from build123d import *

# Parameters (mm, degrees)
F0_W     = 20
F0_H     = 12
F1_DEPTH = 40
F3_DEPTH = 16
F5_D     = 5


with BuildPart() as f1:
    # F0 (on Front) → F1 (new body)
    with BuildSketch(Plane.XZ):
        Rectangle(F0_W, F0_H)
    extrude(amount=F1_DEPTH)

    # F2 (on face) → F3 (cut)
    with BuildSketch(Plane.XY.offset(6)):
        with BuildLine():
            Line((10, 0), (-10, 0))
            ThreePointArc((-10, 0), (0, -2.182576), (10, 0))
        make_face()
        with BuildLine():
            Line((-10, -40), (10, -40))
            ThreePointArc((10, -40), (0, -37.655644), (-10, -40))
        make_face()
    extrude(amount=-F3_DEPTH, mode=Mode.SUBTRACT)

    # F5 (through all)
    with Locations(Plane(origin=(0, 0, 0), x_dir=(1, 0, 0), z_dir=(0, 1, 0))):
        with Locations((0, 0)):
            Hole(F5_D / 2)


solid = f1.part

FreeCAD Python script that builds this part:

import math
import FreeCAD as App
import Part
import Sketcher

V = App.Vector
Q = App.Units.Quantity


def add_polygon(sketch, points):
    """Adds a closed chain of lines whose ends are joined by coincident constraints."""
    first, n = sketch.GeometryCount, len(points)
    for a, b in zip(points, points[1:] + points[:1]):
        sketch.addGeometry(Part.LineSegment(App.Vector(*a, 0), App.Vector(*b, 0)), False)
    for i in range(n):
        sketch.addConstraint(Sketcher.Constraint("Coincident", first + i, 2, first + (i + 1) % n, 1))

doc = App.newDocument("Part")
body = doc.addObject("PartDesign::Body", "Body")

# Sketch on XZ plane
sketch1 = body.newObject("Sketcher::SketchObject", "Sketch")
sketch1.AttachmentSupport = (doc.getObject("XZ_Plane"), [""])
sketch1.MapMode = "FlatFace"
add_polygon(sketch1, [(-10, 6), (-10, -6), (10, -6), (10, 6)])  # lines 0-3
sketch1.addConstraint([
    Sketcher.Constraint("Vertical", 0),
    Sketcher.Constraint("Horizontal", 1),
    Sketcher.Constraint("Vertical", 2),
    Sketcher.Constraint("Horizontal", 3),
    Sketcher.Constraint("Symmetric", 0, 2, 2, 2, -1, 1),
    Sketcher.Constraint("DistanceX", 1, 1, 1, 2, Q("20 mm")),
    Sketcher.Constraint("DistanceY", 0, 2, 0, 1, Q("12 mm")),
])
pad1 = body.newObject("PartDesign::Pad", "Pad")
pad1.Profile = sketch1
pad1.Length = 40

# Sketch on XY plane
sketch2 = body.newObject("Sketcher::SketchObject", "Sketch001")
sketch2.AttachmentSupport = (doc.getObject("XY_Plane"), [""])
sketch2.MapMode = "FlatFace"
sketch2.AttachmentOffset = App.Placement(V(0, 0, 6), App.Rotation())
sketch2.addGeometry([
    Part.LineSegment(V(10, 0, 0), V(-10, 0, 0)),
    Part.ArcOfCircle(Part.Circle(V(0, 22, 0), V(0, 0, 1), 24), math.radians(-115), math.radians(-65)),
    Part.LineSegment(V(-10, -40, 0), V(10, -40, 0)),
    Part.ArcOfCircle(Part.Circle(V(0, -60, 0), V(0, 0, 1), 22), math.radians(64), math.radians(116)),
], False)
sketch2.addConstraint([
    Sketcher.Constraint("Coincident", 0, 1, 1, 2),
    Sketcher.Constraint("Coincident", 1, 1, 0, 2),
    Sketcher.Constraint("Coincident", 2, 1, 3, 2),
    Sketcher.Constraint("Coincident", 3, 1, 2, 2),
    Sketcher.Constraint("Horizontal", 0),
    Sketcher.Constraint("Horizontal", 2),
    Sketcher.Constraint("Symmetric", 0, 1, 1, 1, -1, 1),
    Sketcher.Constraint("PointOnObject", 3, 3, -2),
    Sketcher.Constraint("Vertical", 1, 1, 2, 1),
    Sketcher.Constraint("DistanceX", 0, 2, 0, 1, Q("20 mm")),
    Sketcher.Constraint("DistanceY", 2, 1, -1, 1, Q("40 mm")),
    Sketcher.Constraint("Radius", 1, Q("23.999998 mm")),
    Sketcher.Constraint("Radius", 3, Q("22.499997 mm")),
])
pocket1 = body.newObject("PartDesign::Pocket", "Pocket")
pocket1.Profile = sketch2
pocket1.Length = 16

# Sketch on XZ plane
sketch3 = body.newObject("Sketcher::SketchObject", "Sketch002")
sketch3.AttachmentSupport = (doc.getObject("XZ_Plane"), [""])
sketch3.MapMode = "FlatFace"
sketch3.addGeometry(Part.Circle(V(0, 0, 0), V(0, 0, 1), 2.5), False)
sketch3.addConstraint([
    Sketcher.Constraint("Coincident", 0, 3, -1, 1),
    Sketcher.Constraint("Diameter", 0, Q("5 mm")),
])
doc.recompute()
hole = body.newObject("PartDesign::Hole", "Hole")
hole.Profile = sketch3
hole.ThreadType = "None"
hole.Diameter = 5
hole.DepthType = "ThroughAll"
hole.Reversed = True

doc.recompute()
